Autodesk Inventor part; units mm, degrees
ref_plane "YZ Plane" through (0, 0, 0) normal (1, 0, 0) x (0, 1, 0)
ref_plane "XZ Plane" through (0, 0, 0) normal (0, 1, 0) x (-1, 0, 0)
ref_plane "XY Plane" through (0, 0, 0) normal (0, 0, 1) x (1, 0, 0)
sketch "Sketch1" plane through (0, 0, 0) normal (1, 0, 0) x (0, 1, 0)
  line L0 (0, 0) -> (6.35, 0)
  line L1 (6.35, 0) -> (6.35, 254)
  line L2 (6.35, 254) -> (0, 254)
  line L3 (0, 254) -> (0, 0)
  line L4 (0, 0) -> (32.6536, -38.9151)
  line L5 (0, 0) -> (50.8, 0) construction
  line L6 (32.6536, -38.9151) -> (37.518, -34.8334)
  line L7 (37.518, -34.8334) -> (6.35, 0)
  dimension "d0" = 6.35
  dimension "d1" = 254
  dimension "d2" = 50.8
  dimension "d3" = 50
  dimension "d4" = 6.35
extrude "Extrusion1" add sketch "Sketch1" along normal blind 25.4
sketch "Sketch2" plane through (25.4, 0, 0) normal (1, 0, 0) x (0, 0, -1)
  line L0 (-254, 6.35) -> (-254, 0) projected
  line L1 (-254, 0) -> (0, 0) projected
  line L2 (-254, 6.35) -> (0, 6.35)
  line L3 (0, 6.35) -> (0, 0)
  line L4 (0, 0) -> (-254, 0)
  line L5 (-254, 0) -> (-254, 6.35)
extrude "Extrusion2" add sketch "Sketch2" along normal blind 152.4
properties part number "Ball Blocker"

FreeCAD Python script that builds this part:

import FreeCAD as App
import Part
import Sketcher
from FreeCAD import Vector
Q = App.Units.Quantity


def add_polygon(sketch, points):
    """Adds a closed chain of lines whose ends are joined by coincident constraints."""
    first, n = sketch.GeometryCount, len(points)
    for a, b in zip(points, points[1:] + points[:1]):
        sketch.addGeometry(Part.LineSegment(App.Vector(*a, 0), App.Vector(*b, 0)), False)
    for i in range(n):
        sketch.addConstraint(Sketcher.Constraint("Coincident", first + i, 2, first + (i + 1) % n, 1))

doc = App.newDocument("Part")
body = doc.addObject("PartDesign::Body", "Body")

# Sketch on YZ plane
sketch1 = body.newObject("Sketcher::SketchObject", "Sketch")
sketch1.AttachmentSupport = (doc.getObject("YZ_Plane"), [""])
sketch1.MapMode = "FlatFace"
add_polygon(sketch1, [(0, 254), (0, 0), (32.6536, -38.9151), (37.518, -34.8334), (6.35, 0), (6.35, 254)])  # lines 0-5
sketch1.addConstraint([
    Sketcher.Constraint("Vertical", 0),
    Sketcher.Constraint("Vertical", 4),
    Sketcher.Constraint("Horizontal", 5),
    Sketcher.Constraint("Coincident", 0, 2, -1, 1),
    Sketcher.Constraint("PointOnObject", 3, 2, -1),
    Sketcher.Constraint("Perpendicular", 1, 2),
    Sketcher.Constraint("DistanceY", 0, 2, 0, 1, Q("10 in")),
    Sketcher.Constraint("Distance", 1, Q("2 in")),
    Sketcher.Constraint("Angle", 1, Q("-50 deg")),
    Sketcher.Constraint("DistanceX", 5, 2, 5, 1, Q("0.25 in")),
    Sketcher.Constraint("Distance", 2, Q("0.25 in")),
])
pad1 = body.newObject("PartDesign::Pad", "Pad")
pad1.Profile = sketch1
pad1.Length = Q("1 in")

# Sketch on YZ plane
sketch2 = body.newObject("Sketcher::SketchObject", "Sketch001")
sketch2.AttachmentSupport = (doc.getObject("YZ_Plane"), [""])
sketch2.MapMode = "FlatFace"
sketch2.AttachmentOffset = App.Placement(Vector(0, 0, 1 * 25.4), App.Rotation())
add_polygon(sketch2, [(6.35, 0), (6.35, 254), (0, 254), (0, 0)])  # lines 0-3
sketch2.addConstraint([
    Sketcher.Constraint("Vertical", 0),
    Sketcher.Constraint("Horizontal", 1),
    Sketcher.Constraint("Vertical", 2),
    Sketcher.Constraint("Horizontal", 3),
    Sketcher.Constraint("Coincident", 2, 2, -1, 1),
    Sketcher.Constraint("DistanceY", 0, 1, 0, 2, Q("10 in")),
    Sketcher.Constraint("DistanceX", 1, 2, 1, 1, Q("0.25 in")),
])
pad2 = body.newObject("PartDesign::Pad", "Pad001")
pad2.Profile = sketch2
pad2.Length = Q("6 in")

doc.recompute()
